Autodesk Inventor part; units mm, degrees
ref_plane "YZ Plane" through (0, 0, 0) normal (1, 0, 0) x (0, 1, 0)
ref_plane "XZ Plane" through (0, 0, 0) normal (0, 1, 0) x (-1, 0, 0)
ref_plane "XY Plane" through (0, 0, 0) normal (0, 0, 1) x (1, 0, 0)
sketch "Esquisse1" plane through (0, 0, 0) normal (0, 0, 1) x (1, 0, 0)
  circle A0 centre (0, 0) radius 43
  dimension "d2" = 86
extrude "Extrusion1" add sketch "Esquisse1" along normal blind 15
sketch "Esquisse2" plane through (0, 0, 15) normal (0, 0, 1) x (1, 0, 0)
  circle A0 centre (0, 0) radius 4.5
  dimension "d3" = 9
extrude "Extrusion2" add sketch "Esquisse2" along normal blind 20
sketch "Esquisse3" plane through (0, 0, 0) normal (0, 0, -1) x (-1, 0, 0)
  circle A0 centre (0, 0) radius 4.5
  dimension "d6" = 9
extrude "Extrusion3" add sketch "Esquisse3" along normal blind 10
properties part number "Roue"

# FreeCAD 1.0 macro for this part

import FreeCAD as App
import Part
import Sketcher

V = App.Vector
Q = App.Units.Quantity

doc = App.newDocument("Part")
body = doc.addObject("PartDesign::Body", "Body")

sketch1 = doc.addObject("Sketcher::SketchObject", "Sketch")
body.addObject(sketch1)
sketch1.AttachmentSupport = (doc.XY_Plane, [""])
sketch1.MapMode = "FlatFace"
sketch1.addGeometry(Part.Circle(V(0, 0, 0), V(0, 0, 1), 43), False)
sketch1.addConstraint([
    Sketcher.Constraint("Coincident", 0, 3, -1, 1),
    Sketcher.Constraint("Diameter", 0, Q("86 mm")),
])
pad1 = doc.addObject("PartDesign::Pad", "Pad")
body.addObject(pad1)
pad1.Profile = sketch1
pad1.Length = 15

sketch2 = doc.addObject("Sketcher::SketchObject", "Sketch001")
body.addObject(sketch2)
sketch2.AttachmentSupport = (doc.XY_Plane, [""])
sketch2.MapMode = "FlatFace"
sketch2.AttachmentOffset = App.Placement(V(0, 0, 15), App.Rotation())
sketch2.addGeometry(Part.Circle(V(0, 0, 0), V(0, 0, 1), 4.5), False)
sketch2.addConstraint([
    Sketcher.Constraint("Coincident", 0, 3, -1, 1),
    Sketcher.Constraint("Diameter", 0, Q("9 mm")),
])
pad2 = doc.addObject("PartDesign::Pad", "Pad001")
body.addObject(pad2)
pad2.Profile = sketch2
pad2.Length = 20

sketch3 = doc.addObject("Sketcher::SketchObject", "Sketch002")
body.addObject(sketch3)
sketch3.AttachmentSupport = (doc.XY_Plane, [""])
sketch3.MapMode = "FlatFace"
sketch3.addGeometry(Part.Circle(V(0, 0, 0), V(0, 0, 1), 4.5), False)
sketch3.addConstraint([
    Sketcher.Constraint("Coincident", 0, 3, -1, 1),
    Sketcher.Constraint("Diameter", 0, Q("9 mm")),
])
pad3 = doc.addObject("PartDesign::Pad", "Pad002")
body.addObject(pad3)
pad3.Profile = sketch3
pad3.Length = 10
pad3.Reversed = True

doc.recompute()
